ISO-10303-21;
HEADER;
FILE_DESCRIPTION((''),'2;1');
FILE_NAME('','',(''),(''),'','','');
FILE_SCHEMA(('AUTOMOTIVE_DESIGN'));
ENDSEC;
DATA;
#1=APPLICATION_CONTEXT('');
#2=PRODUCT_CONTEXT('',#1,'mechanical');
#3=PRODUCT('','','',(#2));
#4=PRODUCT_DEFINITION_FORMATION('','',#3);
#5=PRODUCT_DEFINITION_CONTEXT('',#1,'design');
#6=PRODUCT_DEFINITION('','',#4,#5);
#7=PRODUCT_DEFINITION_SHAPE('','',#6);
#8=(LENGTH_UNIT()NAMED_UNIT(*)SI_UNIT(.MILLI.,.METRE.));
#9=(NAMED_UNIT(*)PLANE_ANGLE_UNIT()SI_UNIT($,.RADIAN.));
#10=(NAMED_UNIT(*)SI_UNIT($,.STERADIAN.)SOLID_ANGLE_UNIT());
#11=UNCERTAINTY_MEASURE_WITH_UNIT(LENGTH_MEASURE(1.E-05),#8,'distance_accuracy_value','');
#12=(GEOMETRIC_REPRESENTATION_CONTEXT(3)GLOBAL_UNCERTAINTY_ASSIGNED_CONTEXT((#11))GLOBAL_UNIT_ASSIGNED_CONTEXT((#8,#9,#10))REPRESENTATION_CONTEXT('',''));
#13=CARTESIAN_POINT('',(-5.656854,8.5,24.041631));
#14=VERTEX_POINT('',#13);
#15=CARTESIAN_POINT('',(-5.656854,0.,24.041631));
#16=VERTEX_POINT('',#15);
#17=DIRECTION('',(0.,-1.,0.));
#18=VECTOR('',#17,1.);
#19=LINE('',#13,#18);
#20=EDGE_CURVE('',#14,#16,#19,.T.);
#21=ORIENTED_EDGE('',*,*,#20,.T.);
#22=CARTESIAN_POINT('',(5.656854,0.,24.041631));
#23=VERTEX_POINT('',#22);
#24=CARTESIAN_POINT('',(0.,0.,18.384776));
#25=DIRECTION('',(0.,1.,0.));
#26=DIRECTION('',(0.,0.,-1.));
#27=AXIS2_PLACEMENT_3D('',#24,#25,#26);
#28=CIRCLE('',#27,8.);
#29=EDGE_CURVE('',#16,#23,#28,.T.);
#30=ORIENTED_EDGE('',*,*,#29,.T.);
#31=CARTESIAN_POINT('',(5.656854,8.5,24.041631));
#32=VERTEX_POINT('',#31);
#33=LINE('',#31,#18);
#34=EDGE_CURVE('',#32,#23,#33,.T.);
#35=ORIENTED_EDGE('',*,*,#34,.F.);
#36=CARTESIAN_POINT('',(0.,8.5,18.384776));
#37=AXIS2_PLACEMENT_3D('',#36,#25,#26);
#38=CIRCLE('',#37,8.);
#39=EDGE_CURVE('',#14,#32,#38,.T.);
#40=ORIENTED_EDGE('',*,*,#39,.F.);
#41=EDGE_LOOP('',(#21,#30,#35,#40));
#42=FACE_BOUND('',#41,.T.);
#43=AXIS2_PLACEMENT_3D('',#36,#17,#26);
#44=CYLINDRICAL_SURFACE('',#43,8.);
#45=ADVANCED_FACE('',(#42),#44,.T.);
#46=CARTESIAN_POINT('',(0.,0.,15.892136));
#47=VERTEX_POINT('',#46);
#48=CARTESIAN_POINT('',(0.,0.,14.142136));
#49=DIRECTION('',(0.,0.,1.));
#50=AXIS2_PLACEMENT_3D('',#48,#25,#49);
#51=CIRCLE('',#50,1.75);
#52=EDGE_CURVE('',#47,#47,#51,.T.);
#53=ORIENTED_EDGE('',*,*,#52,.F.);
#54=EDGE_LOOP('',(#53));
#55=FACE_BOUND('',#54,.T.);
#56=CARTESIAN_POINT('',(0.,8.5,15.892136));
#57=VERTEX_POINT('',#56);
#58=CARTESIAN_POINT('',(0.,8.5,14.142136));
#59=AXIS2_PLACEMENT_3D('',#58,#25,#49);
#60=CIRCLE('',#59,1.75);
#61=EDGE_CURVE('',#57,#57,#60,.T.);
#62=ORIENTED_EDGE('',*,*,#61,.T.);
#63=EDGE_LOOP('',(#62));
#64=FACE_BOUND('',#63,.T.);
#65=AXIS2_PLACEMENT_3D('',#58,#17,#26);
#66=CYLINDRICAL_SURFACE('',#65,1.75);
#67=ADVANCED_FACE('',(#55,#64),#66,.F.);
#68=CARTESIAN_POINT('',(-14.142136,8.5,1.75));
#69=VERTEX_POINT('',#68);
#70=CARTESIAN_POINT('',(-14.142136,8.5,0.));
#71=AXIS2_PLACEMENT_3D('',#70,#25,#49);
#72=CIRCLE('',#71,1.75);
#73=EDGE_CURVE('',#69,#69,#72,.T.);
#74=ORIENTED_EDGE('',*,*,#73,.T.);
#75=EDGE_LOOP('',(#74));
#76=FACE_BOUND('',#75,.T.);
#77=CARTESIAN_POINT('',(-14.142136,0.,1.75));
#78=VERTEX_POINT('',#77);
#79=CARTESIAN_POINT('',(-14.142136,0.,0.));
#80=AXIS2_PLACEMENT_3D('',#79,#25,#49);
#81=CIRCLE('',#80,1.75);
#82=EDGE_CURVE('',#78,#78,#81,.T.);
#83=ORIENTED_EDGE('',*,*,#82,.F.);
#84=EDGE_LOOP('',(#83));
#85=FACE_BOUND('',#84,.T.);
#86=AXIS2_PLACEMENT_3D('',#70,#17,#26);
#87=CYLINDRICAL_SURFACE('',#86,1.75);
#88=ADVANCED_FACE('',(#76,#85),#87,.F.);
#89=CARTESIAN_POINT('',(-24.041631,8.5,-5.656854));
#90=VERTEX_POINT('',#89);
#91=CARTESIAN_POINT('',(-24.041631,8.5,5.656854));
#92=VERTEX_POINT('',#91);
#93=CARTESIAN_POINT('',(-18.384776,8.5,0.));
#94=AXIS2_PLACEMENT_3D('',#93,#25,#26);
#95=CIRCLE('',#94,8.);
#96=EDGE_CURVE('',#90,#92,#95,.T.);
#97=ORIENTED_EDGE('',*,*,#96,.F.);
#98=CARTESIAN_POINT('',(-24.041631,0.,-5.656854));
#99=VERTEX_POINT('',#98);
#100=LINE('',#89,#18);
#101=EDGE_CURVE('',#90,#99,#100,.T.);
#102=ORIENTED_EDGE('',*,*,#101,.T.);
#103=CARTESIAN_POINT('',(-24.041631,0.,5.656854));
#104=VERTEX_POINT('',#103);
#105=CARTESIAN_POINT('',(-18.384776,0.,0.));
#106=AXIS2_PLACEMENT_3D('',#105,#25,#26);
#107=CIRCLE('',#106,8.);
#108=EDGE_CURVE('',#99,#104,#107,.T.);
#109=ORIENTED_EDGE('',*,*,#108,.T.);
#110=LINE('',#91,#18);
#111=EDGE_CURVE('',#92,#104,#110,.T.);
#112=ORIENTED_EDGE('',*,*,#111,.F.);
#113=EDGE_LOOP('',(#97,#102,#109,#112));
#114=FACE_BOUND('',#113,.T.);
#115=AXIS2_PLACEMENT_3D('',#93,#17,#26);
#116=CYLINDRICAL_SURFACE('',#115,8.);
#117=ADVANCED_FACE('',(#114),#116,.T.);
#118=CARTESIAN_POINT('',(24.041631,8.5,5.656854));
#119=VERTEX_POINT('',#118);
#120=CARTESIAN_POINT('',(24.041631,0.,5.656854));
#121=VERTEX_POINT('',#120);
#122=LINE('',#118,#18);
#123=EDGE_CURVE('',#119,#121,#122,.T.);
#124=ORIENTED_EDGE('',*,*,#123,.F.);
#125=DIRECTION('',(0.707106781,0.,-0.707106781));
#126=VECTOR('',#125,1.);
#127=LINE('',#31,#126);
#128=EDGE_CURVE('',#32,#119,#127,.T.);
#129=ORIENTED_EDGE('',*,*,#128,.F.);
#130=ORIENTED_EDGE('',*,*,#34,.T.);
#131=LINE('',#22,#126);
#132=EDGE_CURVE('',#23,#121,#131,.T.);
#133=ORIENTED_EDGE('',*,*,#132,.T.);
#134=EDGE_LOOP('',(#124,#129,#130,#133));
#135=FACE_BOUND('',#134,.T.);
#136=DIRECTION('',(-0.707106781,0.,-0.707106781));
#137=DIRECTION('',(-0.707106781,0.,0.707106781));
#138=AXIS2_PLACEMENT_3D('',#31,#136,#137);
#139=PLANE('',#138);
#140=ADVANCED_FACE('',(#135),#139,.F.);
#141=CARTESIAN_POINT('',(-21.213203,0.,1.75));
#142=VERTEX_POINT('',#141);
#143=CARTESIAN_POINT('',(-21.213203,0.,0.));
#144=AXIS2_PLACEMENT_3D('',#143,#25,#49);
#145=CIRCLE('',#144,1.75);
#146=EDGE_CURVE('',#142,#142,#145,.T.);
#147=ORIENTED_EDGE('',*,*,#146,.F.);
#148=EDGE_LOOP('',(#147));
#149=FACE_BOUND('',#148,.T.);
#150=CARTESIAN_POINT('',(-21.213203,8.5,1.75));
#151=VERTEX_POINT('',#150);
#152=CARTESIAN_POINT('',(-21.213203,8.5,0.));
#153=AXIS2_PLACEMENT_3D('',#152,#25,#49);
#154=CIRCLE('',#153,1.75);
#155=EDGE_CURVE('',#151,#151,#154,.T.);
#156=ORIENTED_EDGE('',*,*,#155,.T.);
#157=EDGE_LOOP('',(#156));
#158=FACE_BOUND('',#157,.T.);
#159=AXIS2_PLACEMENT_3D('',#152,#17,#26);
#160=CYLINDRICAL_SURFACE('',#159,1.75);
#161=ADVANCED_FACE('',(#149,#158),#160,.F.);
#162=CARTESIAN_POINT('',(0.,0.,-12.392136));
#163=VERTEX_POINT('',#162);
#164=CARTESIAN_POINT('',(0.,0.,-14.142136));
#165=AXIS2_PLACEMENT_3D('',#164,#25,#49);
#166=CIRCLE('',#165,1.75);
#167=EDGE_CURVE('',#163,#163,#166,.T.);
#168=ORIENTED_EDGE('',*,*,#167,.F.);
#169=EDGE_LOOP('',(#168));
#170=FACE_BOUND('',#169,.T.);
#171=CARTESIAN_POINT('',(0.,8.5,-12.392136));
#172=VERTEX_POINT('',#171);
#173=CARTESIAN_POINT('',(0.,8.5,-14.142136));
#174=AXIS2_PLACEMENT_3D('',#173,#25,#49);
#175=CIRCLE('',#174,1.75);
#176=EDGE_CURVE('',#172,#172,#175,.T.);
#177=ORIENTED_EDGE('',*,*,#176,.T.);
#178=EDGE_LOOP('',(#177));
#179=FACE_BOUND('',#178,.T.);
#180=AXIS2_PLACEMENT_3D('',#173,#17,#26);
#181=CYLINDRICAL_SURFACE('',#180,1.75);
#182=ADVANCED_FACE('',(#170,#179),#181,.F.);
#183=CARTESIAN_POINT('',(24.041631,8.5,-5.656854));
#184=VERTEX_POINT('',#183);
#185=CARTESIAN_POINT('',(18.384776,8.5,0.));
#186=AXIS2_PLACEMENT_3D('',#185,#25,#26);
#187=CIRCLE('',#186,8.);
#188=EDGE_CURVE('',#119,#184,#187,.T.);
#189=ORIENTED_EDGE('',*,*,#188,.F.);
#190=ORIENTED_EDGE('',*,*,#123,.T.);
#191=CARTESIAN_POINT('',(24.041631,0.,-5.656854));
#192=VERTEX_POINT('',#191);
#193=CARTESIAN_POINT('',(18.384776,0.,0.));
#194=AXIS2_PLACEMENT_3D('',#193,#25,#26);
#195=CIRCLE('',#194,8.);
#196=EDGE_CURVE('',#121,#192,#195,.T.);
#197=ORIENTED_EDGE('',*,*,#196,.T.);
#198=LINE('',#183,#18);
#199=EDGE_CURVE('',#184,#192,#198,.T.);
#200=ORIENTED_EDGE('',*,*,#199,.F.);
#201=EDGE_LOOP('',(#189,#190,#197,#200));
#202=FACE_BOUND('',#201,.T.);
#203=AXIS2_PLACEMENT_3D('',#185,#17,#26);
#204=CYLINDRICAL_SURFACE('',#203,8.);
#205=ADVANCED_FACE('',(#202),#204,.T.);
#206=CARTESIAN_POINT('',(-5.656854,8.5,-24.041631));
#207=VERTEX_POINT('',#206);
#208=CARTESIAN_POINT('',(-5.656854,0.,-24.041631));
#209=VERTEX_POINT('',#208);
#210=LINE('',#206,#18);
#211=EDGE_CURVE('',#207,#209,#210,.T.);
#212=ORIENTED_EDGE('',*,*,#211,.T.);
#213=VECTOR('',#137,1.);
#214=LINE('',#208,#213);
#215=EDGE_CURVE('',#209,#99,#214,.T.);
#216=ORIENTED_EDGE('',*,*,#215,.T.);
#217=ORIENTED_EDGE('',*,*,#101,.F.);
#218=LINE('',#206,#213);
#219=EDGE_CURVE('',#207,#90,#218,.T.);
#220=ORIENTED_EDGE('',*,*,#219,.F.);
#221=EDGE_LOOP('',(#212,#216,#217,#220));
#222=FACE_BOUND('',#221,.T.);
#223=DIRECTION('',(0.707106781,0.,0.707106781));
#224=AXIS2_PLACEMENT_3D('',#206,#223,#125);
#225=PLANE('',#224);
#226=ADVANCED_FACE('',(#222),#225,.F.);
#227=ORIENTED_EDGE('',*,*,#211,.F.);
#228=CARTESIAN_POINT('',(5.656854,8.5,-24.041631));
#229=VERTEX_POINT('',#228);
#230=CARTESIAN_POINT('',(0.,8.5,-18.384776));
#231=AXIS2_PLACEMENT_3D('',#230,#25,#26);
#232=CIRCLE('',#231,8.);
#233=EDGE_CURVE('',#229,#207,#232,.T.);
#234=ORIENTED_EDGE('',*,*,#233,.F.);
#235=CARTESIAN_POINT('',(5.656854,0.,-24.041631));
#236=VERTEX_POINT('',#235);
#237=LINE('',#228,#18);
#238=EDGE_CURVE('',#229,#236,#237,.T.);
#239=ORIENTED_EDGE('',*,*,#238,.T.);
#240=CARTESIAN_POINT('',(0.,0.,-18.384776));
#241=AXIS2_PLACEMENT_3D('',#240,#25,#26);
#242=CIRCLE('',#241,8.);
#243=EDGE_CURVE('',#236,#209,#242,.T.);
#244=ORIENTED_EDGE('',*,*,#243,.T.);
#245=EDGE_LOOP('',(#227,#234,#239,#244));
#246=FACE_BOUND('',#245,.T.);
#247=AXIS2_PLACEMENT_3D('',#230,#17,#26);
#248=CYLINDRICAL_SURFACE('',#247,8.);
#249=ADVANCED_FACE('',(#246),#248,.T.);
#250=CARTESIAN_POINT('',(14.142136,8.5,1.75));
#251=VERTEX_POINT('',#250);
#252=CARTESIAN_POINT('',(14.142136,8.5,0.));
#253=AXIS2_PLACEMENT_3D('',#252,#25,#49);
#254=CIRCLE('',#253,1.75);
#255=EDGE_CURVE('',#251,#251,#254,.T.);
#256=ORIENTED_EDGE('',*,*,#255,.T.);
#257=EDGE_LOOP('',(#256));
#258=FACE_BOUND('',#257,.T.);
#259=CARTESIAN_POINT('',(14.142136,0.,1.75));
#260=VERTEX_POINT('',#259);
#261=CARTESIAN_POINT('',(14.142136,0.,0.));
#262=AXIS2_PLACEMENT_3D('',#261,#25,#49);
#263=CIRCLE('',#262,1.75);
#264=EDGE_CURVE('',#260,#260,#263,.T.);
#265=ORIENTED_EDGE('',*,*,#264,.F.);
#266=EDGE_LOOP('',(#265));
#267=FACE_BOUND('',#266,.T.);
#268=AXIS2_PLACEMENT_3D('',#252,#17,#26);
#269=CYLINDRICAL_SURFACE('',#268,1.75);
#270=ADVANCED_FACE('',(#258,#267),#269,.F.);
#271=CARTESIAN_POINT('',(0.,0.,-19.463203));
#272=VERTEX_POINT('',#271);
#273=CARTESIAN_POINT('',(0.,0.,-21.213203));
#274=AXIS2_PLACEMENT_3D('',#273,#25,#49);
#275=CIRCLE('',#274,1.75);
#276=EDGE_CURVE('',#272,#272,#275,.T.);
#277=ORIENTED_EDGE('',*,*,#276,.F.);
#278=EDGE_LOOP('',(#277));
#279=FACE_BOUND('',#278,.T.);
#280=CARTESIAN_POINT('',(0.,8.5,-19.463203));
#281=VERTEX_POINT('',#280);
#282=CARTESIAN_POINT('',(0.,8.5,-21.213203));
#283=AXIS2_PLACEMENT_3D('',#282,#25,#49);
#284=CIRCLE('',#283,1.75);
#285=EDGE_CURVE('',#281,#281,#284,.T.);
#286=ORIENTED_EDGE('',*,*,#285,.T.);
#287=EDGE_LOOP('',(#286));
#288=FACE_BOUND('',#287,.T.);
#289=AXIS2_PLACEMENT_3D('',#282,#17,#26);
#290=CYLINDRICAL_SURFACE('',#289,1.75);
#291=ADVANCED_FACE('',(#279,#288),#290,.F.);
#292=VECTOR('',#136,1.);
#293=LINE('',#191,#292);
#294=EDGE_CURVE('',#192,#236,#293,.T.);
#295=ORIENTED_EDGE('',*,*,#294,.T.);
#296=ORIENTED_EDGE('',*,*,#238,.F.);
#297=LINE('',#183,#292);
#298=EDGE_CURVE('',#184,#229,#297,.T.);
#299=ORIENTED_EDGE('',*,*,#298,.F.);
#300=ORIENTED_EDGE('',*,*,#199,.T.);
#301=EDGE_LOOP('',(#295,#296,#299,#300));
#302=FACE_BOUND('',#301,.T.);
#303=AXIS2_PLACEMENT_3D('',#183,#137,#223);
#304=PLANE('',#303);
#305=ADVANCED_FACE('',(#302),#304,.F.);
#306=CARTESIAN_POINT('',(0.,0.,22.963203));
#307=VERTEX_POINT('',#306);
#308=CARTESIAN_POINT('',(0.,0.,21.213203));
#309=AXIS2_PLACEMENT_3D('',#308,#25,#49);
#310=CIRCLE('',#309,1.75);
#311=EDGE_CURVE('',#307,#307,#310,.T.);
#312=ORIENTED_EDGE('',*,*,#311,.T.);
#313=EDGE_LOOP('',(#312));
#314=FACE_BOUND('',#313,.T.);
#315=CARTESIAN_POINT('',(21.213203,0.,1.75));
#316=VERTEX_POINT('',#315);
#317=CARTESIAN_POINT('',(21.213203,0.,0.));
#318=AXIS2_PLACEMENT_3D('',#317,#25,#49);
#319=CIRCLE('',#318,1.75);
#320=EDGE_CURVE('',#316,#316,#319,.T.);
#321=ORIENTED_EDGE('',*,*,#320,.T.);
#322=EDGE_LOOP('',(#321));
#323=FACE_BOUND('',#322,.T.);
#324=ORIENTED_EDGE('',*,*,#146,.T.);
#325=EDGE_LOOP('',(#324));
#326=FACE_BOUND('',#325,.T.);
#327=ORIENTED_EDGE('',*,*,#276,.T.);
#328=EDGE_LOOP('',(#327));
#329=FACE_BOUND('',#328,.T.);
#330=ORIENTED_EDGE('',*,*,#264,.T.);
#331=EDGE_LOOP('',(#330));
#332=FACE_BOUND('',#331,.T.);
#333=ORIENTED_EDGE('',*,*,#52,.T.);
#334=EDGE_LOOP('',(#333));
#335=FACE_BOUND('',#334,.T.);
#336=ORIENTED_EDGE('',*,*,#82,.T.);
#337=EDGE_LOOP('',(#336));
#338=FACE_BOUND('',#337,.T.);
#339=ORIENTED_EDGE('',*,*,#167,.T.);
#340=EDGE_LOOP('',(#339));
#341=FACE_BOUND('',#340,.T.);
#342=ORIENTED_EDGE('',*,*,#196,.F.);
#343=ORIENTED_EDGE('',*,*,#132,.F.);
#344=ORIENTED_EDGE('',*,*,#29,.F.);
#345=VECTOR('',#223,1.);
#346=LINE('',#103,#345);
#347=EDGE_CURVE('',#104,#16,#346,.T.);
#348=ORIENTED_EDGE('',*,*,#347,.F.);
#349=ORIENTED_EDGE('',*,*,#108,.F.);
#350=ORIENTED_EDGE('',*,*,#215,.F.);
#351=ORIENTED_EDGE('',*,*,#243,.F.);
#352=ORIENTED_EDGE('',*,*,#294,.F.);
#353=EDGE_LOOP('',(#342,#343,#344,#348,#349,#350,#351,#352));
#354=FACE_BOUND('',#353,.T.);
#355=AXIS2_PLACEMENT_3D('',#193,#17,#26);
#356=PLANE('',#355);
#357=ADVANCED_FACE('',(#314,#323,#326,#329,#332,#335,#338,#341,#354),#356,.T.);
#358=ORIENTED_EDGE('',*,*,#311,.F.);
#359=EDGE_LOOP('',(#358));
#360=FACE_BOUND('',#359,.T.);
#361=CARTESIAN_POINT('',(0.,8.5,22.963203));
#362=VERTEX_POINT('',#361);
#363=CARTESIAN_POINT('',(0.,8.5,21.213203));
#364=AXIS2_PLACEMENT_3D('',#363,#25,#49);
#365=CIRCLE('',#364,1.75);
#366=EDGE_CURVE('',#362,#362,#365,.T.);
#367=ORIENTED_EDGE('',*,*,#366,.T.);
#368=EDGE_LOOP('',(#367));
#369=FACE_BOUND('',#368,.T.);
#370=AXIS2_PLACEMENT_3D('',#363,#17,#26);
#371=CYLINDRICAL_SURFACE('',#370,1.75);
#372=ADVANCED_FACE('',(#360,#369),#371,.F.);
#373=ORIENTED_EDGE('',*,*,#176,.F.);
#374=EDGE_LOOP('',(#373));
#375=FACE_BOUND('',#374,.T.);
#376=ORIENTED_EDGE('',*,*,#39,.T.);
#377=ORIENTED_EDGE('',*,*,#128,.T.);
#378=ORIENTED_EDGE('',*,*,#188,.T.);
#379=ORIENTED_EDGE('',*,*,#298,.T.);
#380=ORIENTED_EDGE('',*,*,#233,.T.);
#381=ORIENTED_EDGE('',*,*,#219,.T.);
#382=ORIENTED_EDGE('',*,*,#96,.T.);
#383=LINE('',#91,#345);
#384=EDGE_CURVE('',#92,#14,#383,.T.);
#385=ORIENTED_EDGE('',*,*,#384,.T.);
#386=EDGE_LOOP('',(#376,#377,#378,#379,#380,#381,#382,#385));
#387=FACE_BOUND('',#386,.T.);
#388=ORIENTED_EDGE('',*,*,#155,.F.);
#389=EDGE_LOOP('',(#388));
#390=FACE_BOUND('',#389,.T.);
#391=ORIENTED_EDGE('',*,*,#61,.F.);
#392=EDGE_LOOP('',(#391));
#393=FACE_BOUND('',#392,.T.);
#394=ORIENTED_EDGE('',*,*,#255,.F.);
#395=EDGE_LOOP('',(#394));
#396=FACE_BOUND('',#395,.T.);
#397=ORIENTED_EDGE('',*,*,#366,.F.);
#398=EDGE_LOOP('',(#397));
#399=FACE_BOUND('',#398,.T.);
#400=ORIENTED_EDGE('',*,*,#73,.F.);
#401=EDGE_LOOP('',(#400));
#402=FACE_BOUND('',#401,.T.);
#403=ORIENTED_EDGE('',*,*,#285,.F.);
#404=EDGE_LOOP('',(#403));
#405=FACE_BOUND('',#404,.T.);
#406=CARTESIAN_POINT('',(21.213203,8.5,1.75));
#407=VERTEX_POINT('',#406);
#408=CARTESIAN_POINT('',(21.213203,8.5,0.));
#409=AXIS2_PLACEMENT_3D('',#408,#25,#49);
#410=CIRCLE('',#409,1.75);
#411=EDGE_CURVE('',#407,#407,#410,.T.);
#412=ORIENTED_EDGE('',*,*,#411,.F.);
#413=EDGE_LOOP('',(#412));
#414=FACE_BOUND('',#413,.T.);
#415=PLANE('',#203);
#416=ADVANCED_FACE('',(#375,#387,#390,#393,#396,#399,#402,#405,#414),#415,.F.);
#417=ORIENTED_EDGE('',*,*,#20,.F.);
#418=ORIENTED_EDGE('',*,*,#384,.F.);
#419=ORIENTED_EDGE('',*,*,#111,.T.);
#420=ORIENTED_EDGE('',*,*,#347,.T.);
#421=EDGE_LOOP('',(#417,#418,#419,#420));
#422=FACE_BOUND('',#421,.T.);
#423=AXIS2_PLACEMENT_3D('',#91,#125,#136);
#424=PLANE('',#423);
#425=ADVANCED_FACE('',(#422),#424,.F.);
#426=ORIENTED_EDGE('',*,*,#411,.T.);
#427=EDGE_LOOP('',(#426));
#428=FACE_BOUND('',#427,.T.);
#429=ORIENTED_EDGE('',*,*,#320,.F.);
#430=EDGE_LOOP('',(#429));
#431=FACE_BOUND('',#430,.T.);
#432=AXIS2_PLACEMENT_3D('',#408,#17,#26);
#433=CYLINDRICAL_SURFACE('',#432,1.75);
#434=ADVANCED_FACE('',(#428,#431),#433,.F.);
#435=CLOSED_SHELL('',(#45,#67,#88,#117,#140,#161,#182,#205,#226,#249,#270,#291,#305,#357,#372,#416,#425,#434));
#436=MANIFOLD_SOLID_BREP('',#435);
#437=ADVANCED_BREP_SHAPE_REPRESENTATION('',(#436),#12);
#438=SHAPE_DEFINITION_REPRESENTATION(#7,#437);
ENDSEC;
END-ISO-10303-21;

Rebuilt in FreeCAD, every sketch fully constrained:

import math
import FreeCAD as App
import Part
import Sketcher

V = App.Vector
Q = App.Units.Quantity

doc = App.newDocument("Part")
body = doc.addObject("PartDesign::Body", "Body")

# Sketch on XZ plane
sketch1 = doc.addObject("Sketcher::SketchObject", "Sketch")
body.addObject(sketch1)
sketch1.AttachmentSupport = (doc.XZ_Plane, [""])
sketch1.MapMode = "FlatFace"
sketch1.addGeometry([
    Part.LineSegment(V(5.7, 24, 0), V(24, 5.7, 0)),  # 0
    Part.ArcOfCircle(Part.Circle(V(18.4, 0, 0), V(0, 0, 1), 8), math.radians(-45), math.radians(45)),  # 1
    Part.LineSegment(V(24, -5.7, 0), V(5.7, -24, 0)),  # 2
    Part.ArcOfCircle(Part.Circle(V(0, -18.4, 0), V(0, 0, 1), 8), math.radians(-135), math.radians(-45)),  # 3
    Part.LineSegment(V(-5.7, -24, 0), V(-24, -5.7, 0)),  # 4
    Part.ArcOfCircle(Part.Circle(V(-18.4, 0, 0), V(0, 0, 1), 8), math.radians(135), math.radians(225)),  # 5
    Part.LineSegment(V(-24, 5.7, 0), V(-5.7, 24, 0)),  # 6
    Part.ArcOfCircle(Part.Circle(V(0, 18.4, 0), V(0, 0, 1), 8), math.radians(45), math.radians(135)),  # 7
    Part.Circle(V(0, 21.2, 0), V(0, 0, 1), 1.8),  # 8
    Part.Circle(V(0, 14.1, 0), V(0, 0, 1), 1.8),  # 9
    Part.Circle(V(-21.2, 0, 0), V(0, 0, 1), 1.8),  # 10
    Part.Circle(V(-14.1, 0, 0), V(0, 0, 1), 1.8),  # 11
    Part.Circle(V(14.1, 0, 0), V(0, 0, 1), 1.8),  # 12
    Part.Circle(V(21.2, 0, 0), V(0, 0, 1), 1.8),  # 13
    Part.Circle(V(0, -14.1, 0), V(0, 0, 1), 1.8),  # 14
    Part.Circle(V(0, -21.2, 0), V(0, 0, 1), 1.8),  # 15
], False)
sketch1.addConstraint([
    Sketcher.Constraint("Tangent", 0, 2, 1, 2),
    Sketcher.Constraint("Tangent", 1, 1, 2, 1),
    Sketcher.Constraint("Tangent", 2, 2, 3, 2),
    Sketcher.Constraint("Tangent", 3, 1, 4, 1),
    Sketcher.Constraint("Tangent", 4, 2, 5, 2),
    Sketcher.Constraint("Tangent", 5, 1, 6, 1),
    Sketcher.Constraint("Tangent", 6, 2, 7, 2),
    Sketcher.Constraint("Tangent", 7, 1, 0, 1),
    Sketcher.Constraint("Equal", 1, 3),
    Sketcher.Constraint("Equal", 3, 5),
    Sketcher.Constraint("Equal", 5, 7),
    Sketcher.Constraint("Equal", 8, 9),
    Sketcher.Constraint("Equal", 9, 10),
    Sketcher.Constraint("Equal", 10, 11),
    Sketcher.Constraint("Equal", 11, 12),
    Sketcher.Constraint("Equal", 12, 13),
    Sketcher.Constraint("Equal", 13, 14),
    Sketcher.Constraint("Equal", 14, 15),
    Sketcher.Constraint("Symmetric", 1, 3, 5, 3, -1, 1),
    Sketcher.Constraint("Symmetric", 3, 3, 7, 3, -1, 1),
    Sketcher.Constraint("Symmetric", 11, 3, 12, 3, -1, 1),
    Sketcher.Constraint("Symmetric", 10, 3, 13, 3, -1, 1),
    Sketcher.Constraint("Symmetric", 9, 3, 14, 3, -1, 1),
    Sketcher.Constraint("Symmetric", 8, 3, 15, 3, -1, 1),
    Sketcher.Constraint("Symmetric", 2, 2, 3, 1, -2),
    Sketcher.Constraint("PointOnObject", 8, 3, -2),
    Sketcher.Constraint("PointOnObject", 9, 3, -2),
    Sketcher.Constraint("PointOnObject", 10, 3, -1),
    Sketcher.Constraint("PointOnObject", 11, 3, -1),
    Sketcher.Constraint("Perpendicular", 0, 2),
    Sketcher.Constraint("Radius", 1, Q("8 mm")),
    Sketcher.Constraint("Diameter", 8, Q("3.5 mm")),
    Sketcher.Constraint("Distance", 0, Q("26 mm")),
    Sketcher.Constraint("DistanceY", 3, 3, 8, 3, Q("39.59798 mm")),
    Sketcher.Constraint("DistanceY", 9, 3, 7, 3, Q("4.242641 mm")),
    Sketcher.Constraint("DistanceX", 5, 3, 11, 3, Q("4.242641 mm")),
    Sketcher.Constraint("DistanceX", 10, 3, -1, 1, Q("21.213203 mm")),
])
pad1 = doc.addObject("PartDesign::Pad", "Pad")
body.addObject(pad1)
pad1.Profile = sketch1
pad1.Length = 8.5
pad1.Reversed = True

doc.recompute()
